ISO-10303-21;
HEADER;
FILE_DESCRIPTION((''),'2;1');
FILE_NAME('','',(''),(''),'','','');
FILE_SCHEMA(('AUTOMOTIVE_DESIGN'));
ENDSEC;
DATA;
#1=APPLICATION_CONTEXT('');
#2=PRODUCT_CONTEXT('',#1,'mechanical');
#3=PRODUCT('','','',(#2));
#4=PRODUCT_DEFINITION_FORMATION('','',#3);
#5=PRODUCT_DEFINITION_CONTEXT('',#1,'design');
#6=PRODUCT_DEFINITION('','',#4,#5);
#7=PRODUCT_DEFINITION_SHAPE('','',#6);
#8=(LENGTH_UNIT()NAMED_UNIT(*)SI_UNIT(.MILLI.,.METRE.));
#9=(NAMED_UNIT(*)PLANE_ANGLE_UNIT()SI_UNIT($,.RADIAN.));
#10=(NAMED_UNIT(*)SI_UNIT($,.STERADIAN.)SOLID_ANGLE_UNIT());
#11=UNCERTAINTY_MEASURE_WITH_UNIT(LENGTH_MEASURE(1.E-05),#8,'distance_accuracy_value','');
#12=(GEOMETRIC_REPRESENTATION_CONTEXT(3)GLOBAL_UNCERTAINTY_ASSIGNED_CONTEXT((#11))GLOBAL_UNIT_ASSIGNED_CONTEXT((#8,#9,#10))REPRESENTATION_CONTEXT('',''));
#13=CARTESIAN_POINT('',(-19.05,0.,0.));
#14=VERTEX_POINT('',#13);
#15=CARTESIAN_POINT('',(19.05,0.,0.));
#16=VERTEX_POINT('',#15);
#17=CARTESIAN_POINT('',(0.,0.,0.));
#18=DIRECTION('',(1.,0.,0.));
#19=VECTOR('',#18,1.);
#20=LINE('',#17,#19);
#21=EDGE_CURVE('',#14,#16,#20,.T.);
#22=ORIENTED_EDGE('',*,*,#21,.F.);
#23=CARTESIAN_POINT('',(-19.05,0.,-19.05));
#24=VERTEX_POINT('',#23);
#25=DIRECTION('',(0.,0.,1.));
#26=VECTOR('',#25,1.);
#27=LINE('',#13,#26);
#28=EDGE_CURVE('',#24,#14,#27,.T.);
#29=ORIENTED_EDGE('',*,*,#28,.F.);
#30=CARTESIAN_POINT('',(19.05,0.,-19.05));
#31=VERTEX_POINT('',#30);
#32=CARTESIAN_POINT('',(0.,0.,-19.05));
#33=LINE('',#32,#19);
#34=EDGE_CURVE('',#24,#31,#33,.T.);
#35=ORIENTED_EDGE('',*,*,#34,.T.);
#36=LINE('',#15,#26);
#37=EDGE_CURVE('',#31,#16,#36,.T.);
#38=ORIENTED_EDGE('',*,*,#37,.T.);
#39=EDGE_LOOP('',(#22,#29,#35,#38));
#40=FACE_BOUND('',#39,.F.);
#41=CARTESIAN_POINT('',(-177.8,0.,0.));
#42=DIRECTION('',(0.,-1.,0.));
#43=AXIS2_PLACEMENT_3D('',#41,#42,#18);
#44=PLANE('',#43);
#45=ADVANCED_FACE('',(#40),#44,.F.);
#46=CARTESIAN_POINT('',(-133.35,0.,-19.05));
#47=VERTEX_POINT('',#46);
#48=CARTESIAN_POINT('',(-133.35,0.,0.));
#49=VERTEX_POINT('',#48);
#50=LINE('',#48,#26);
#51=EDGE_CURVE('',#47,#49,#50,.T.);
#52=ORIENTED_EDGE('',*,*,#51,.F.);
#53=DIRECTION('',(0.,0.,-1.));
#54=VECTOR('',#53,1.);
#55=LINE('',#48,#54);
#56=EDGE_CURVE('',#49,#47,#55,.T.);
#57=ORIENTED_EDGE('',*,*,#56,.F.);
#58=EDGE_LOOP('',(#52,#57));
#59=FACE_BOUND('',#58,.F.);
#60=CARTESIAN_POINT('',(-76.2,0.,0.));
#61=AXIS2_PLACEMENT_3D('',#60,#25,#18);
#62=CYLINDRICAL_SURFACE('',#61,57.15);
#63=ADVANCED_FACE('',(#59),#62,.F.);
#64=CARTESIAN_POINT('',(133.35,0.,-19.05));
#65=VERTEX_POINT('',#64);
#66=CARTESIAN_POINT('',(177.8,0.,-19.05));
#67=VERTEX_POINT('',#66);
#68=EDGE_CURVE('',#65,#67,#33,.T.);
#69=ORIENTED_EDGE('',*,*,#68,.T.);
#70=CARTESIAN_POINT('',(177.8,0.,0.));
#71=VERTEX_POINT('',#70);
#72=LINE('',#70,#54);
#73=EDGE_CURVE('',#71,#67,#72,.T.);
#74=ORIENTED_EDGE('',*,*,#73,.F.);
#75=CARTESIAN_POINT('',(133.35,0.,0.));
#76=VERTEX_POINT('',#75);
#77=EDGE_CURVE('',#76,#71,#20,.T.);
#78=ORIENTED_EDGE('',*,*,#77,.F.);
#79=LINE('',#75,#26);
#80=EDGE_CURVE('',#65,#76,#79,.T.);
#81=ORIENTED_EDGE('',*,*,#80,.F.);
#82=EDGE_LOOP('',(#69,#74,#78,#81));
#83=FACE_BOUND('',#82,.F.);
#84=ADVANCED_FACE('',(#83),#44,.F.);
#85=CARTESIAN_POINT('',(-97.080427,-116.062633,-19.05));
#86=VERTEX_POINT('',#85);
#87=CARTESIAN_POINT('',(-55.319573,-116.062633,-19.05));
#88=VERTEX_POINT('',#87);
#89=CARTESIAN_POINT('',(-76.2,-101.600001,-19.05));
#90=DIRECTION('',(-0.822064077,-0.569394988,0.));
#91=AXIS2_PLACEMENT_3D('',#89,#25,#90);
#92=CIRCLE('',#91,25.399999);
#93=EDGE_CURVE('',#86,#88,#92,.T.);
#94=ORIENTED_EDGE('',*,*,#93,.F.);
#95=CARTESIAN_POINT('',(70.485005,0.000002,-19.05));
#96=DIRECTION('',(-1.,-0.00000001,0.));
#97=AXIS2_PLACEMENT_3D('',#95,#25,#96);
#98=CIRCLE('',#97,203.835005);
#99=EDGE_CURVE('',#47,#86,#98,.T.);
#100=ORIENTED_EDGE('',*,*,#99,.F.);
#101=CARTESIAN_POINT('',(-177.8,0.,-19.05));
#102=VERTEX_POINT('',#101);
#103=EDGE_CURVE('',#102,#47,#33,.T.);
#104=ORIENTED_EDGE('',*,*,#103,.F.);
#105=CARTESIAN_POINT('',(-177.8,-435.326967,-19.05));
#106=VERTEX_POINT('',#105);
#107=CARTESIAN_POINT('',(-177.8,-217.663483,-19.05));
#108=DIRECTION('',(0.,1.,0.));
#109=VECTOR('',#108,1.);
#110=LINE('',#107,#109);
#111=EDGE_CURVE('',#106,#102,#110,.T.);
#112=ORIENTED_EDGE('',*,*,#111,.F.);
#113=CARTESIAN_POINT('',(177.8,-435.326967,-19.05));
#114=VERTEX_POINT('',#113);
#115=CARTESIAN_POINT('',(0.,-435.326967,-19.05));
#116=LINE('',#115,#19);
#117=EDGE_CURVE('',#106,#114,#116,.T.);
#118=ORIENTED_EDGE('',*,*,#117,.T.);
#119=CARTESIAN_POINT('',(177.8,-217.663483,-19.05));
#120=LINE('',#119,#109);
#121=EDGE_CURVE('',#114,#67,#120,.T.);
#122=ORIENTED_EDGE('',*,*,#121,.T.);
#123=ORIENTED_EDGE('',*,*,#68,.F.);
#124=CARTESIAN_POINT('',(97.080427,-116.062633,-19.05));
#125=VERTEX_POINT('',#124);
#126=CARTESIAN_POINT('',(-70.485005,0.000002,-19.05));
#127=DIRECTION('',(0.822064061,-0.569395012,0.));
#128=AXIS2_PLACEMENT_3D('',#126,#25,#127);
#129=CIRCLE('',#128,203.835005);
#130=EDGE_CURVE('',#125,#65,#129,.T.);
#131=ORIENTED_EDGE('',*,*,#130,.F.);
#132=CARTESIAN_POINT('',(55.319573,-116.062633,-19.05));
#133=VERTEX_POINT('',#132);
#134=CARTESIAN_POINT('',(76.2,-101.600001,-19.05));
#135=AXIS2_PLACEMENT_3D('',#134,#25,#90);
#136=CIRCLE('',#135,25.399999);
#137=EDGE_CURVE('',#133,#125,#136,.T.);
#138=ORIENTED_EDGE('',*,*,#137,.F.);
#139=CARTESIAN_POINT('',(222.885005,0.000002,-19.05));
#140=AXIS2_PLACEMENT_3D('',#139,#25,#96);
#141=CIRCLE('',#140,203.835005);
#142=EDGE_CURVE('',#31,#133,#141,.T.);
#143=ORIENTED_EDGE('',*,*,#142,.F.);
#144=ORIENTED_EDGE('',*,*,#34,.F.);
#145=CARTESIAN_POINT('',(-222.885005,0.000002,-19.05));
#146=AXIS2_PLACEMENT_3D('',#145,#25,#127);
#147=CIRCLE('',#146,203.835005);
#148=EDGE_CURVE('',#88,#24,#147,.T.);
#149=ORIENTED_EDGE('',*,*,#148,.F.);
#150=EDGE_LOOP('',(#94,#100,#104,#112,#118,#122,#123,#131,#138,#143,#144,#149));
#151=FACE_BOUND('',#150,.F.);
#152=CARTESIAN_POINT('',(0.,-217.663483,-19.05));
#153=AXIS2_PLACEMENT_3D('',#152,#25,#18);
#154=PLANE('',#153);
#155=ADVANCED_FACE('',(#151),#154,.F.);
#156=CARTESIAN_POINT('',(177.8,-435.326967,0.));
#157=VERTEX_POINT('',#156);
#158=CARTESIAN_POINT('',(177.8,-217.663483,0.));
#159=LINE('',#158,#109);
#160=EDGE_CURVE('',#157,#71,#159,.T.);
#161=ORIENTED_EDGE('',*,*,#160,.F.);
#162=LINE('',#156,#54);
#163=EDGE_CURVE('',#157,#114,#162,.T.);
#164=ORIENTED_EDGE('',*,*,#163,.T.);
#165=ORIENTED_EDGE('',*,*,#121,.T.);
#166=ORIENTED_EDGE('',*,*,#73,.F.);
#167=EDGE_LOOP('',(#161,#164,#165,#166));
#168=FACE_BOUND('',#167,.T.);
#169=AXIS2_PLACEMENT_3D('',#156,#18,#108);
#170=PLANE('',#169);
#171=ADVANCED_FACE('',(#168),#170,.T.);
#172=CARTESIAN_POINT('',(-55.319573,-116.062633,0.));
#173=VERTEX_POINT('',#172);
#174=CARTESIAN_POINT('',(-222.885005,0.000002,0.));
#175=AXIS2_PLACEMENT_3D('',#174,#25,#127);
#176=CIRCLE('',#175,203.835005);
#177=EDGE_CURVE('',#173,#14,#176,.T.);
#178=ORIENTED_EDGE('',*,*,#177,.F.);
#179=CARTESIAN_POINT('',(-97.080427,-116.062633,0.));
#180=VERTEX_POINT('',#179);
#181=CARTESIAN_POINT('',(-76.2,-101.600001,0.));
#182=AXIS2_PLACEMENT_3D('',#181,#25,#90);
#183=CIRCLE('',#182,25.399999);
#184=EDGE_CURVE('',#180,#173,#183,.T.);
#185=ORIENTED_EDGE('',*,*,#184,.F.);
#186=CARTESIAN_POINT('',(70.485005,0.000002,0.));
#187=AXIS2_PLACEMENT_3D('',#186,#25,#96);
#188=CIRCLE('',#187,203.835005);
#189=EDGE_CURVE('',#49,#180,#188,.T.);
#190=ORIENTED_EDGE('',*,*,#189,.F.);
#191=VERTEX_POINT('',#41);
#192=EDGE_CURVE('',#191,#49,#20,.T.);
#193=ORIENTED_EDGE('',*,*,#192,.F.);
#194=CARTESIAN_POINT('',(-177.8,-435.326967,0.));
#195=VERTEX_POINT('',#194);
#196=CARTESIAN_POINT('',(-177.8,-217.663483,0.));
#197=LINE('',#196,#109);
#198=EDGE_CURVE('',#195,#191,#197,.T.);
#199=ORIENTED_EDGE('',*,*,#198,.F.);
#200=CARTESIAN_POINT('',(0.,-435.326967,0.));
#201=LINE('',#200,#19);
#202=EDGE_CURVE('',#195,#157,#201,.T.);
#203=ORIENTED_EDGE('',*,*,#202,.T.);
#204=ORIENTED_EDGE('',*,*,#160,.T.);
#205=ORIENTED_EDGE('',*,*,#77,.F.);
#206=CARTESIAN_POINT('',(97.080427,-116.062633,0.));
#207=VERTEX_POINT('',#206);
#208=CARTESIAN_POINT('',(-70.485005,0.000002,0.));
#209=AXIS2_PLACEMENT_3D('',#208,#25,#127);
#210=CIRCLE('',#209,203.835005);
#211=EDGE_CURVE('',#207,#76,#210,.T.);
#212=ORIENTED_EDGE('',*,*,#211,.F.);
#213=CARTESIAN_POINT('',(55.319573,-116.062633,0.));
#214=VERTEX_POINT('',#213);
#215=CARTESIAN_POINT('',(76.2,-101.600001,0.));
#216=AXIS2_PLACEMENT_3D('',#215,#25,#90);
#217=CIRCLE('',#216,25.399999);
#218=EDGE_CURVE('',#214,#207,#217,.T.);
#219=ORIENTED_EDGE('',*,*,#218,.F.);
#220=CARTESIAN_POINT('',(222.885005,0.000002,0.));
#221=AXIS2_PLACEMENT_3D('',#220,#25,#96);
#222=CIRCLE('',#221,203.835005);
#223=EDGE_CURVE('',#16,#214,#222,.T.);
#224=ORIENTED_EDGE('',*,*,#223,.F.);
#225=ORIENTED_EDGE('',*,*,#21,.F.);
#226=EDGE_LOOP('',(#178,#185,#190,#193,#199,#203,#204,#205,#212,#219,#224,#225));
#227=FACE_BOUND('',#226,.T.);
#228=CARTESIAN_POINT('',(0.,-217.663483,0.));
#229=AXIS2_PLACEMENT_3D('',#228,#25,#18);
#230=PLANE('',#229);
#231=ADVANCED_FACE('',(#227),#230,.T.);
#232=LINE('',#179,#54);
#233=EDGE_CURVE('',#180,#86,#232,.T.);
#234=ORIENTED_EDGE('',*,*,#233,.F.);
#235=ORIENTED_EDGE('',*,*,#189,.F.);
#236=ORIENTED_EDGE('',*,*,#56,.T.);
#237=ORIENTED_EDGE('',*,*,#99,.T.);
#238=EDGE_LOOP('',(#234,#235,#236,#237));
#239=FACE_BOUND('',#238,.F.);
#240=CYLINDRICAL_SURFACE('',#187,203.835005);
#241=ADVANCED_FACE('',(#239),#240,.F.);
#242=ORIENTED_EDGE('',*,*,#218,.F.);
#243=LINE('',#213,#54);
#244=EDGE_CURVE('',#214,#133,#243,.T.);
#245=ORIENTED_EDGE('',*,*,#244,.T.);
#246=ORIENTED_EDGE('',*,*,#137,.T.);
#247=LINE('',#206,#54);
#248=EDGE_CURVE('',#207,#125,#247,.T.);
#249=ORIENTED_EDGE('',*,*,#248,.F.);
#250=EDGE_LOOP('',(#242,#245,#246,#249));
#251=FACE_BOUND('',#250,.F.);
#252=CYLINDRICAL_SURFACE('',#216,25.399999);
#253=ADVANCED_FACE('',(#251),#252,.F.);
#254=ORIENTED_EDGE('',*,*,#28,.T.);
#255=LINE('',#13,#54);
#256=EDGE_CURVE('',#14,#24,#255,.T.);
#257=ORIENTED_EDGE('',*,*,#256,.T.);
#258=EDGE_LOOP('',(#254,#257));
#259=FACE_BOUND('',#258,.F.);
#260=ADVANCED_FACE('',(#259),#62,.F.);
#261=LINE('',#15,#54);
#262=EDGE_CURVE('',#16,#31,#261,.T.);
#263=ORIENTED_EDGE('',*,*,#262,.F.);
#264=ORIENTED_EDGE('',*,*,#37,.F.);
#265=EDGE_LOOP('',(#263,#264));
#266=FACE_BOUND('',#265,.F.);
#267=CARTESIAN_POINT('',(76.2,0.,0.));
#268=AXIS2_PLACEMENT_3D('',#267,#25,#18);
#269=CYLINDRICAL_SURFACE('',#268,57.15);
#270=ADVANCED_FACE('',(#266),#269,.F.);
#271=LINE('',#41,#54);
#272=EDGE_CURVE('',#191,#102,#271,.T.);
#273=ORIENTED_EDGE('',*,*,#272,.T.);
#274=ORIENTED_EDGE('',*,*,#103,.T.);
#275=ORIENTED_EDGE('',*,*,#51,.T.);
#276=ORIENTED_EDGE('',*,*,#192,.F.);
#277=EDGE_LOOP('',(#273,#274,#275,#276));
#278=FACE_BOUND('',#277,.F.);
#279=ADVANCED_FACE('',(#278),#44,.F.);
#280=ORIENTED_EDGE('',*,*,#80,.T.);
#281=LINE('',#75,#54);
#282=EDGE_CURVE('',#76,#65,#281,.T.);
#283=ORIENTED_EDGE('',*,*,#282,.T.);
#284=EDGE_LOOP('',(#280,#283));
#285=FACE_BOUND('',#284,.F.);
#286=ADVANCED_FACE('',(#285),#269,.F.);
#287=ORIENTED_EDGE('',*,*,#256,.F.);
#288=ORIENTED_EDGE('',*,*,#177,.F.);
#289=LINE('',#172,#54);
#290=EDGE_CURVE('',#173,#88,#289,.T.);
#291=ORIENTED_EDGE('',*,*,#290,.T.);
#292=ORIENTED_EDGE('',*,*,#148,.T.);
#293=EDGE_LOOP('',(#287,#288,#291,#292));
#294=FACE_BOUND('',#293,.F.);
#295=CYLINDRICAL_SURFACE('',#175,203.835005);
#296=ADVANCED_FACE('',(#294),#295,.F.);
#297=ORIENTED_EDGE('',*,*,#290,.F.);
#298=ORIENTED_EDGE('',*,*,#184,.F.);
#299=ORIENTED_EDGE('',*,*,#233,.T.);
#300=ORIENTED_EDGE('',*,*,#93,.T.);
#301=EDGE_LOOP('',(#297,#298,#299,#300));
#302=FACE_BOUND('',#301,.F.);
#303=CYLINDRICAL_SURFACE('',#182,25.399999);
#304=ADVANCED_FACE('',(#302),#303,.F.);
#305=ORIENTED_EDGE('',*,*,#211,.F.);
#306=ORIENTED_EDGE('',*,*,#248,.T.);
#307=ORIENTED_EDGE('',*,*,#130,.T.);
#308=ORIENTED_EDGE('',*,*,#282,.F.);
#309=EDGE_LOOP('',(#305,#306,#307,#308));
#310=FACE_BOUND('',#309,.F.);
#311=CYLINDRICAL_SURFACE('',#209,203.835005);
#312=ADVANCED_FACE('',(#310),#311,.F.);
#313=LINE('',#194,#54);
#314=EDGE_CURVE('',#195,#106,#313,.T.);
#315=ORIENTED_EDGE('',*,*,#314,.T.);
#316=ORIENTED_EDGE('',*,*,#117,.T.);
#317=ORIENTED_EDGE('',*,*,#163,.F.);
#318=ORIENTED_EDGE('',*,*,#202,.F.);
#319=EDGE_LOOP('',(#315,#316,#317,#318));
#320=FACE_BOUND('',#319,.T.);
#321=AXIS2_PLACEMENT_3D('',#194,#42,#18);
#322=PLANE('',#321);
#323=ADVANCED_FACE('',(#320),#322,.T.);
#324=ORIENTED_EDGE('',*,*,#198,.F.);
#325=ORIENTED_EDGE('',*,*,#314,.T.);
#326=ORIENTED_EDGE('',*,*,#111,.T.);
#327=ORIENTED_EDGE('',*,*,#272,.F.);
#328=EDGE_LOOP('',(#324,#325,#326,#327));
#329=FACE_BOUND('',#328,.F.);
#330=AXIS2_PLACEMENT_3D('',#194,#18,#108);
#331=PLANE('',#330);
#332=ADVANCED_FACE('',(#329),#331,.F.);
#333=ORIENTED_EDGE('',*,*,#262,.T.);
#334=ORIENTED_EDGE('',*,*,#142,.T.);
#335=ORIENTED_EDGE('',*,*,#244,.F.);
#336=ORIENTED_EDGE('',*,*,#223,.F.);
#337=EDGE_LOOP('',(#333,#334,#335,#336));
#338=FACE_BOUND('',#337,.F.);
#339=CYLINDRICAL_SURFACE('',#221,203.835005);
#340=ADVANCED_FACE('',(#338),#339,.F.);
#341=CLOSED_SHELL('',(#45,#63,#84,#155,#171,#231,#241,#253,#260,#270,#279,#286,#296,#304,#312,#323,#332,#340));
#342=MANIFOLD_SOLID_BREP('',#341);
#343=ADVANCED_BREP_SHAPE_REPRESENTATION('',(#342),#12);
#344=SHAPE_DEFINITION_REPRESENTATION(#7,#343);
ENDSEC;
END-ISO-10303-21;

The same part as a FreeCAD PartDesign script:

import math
import FreeCAD as App
import Part
import Sketcher
from FreeCAD import Vector
Q = App.Units.Quantity


def add_polygon(sketch, points):
    """Adds a closed chain of lines whose ends are joined by coincident constraints."""
    first, n = sketch.GeometryCount, len(points)
    for a, b in zip(points, points[1:] + points[:1]):
        sketch.addGeometry(Part.LineSegment(App.Vector(*a, 0), App.Vector(*b, 0)), False)
    for i in range(n):
        sketch.addConstraint(Sketcher.Constraint("Coincident", first + i, 2, first + (i + 1) % n, 1))

doc = App.newDocument("Part")
body = doc.addObject("PartDesign::Body", "Body")

# Sketch on XY plane
sketch1 = doc.addObject("Sketcher::SketchObject", "Sketch")
body.addObject(sketch1)
sketch1.AttachmentSupport = (doc.XY_Plane, [""])
sketch1.MapMode = "FlatFace"
add_polygon(sketch1, [(-178, 0), (-178, -435), (178, -435), (178, 0)])  # lines 0-3
sketch1.addConstraint([
    Sketcher.Constraint("Vertical", 0),
    Sketcher.Constraint("Horizontal", 1),
    Sketcher.Constraint("Vertical", 2),
    Sketcher.Constraint("Horizontal", 3),
    Sketcher.Constraint("Symmetric", 2, 2, 3, 2, -1, 1),
    Sketcher.Constraint("DistanceX", 1, 1, 1, 2, Q("14 in")),
    Sketcher.Constraint("DistanceY", 0, 2, 0, 1, 435.326967),
])
pad1 = doc.addObject("PartDesign::Pad", "Pad")
body.addObject(pad1)
pad1.Profile = sketch1
pad1.Length = Q("0.75 in")
pad1.Reversed = True

# Sketch on XY plane
sketch2 = doc.addObject("Sketcher::SketchObject", "Sketch001")
body.addObject(sketch2)
sketch2.AttachmentSupport = (doc.XY_Plane, [""])
sketch2.MapMode = "FlatFace"
sketch2.addGeometry([
    Part.ArcOfCircle(Part.Circle(Vector(-76, -102, 0), Vector(0, 0, 1), 25), math.radians(-145), math.radians(-35)),  # 0
    Part.ArcOfCircle(Part.Circle(Vector(-223, 0, 0), Vector(0, 0, 1), 204), math.radians(-35), math.radians(0)),  # 1
    Part.ArcOfCircle(Part.Circle(Vector(-76, 0, 0), Vector(0, 0, 1), 57), math.radians(0), math.radians(180)),  # 2
    Part.ArcOfCircle(Part.Circle(Vector(70, 0, 0), Vector(0, 0, 1), 204), math.radians(-180), math.radians(-145)),  # 3
    Part.ArcOfCircle(Part.Circle(Vector(223, 0, 0), Vector(0, 0, 1), 204), math.radians(-180), math.radians(-145)),  # 4
    Part.ArcOfCircle(Part.Circle(Vector(76, -102, 0), Vector(0, 0, 1), 25), math.radians(-145), math.radians(-35)),  # 5
    Part.ArcOfCircle(Part.Circle(Vector(-70, 0, 0), Vector(0, 0, 1), 204), math.radians(-35), math.radians(0)),  # 6
    Part.ArcOfCircle(Part.Circle(Vector(76, 0, 0), Vector(0, 0, 1), 57), math.radians(0), math.radians(180)),  # 7
], False)
sketch2.addConstraint([
    Sketcher.Constraint("Tangent", 0, 2, 1, 1),
    Sketcher.Constraint("Tangent", 1, 2, 2, 1),
    Sketcher.Constraint("Tangent", 2, 2, 3, 1),
    Sketcher.Constraint("Tangent", 3, 2, 0, 1),
    Sketcher.Constraint("Tangent", 4, 2, 5, 1),
    Sketcher.Constraint("Tangent", 5, 2, 6, 1),
    Sketcher.Constraint("Tangent", 6, 2, 7, 1),
    Sketcher.Constraint("Tangent", 7, 2, 4, 1),
    Sketcher.Constraint("Equal", 1, 3),
    Sketcher.Constraint("Equal", 3, 4),
    Sketcher.Constraint("Equal", 0, 5),
    Sketcher.Constraint("Equal", 4, 6),
    Sketcher.Constraint("Equal", 2, 7),
    Sketcher.Constraint("Symmetric", 1, 3, 4, 3, -1, 1),
    Sketcher.Constraint("Symmetric", 0, 3, 5, 3, -2),
    Sketcher.Constraint("PointOnObject", 2, 3, -1),
    Sketcher.Constraint("PointOnObject", 3, 3, -1),
    Sketcher.Constraint("PointOnObject", 7, 3, -1),
    Sketcher.Constraint("Radius", 0, Q("1 in")),
    Sketcher.Constraint("Radius", 2, Q("2.25 in")),
    Sketcher.Constraint("DistanceX", 0, 3, -1, 1, Q("3 in")),
    Sketcher.Constraint("DistanceY", 0, 3, -1, 1, Q("4 in")),
])
pocket1 = doc.addObject("PartDesign::Pocket", "Pocket")
body.addObject(pocket1)
pocket1.Profile = sketch2
pocket1.Type = "ThroughAll"

doc.recompute()
